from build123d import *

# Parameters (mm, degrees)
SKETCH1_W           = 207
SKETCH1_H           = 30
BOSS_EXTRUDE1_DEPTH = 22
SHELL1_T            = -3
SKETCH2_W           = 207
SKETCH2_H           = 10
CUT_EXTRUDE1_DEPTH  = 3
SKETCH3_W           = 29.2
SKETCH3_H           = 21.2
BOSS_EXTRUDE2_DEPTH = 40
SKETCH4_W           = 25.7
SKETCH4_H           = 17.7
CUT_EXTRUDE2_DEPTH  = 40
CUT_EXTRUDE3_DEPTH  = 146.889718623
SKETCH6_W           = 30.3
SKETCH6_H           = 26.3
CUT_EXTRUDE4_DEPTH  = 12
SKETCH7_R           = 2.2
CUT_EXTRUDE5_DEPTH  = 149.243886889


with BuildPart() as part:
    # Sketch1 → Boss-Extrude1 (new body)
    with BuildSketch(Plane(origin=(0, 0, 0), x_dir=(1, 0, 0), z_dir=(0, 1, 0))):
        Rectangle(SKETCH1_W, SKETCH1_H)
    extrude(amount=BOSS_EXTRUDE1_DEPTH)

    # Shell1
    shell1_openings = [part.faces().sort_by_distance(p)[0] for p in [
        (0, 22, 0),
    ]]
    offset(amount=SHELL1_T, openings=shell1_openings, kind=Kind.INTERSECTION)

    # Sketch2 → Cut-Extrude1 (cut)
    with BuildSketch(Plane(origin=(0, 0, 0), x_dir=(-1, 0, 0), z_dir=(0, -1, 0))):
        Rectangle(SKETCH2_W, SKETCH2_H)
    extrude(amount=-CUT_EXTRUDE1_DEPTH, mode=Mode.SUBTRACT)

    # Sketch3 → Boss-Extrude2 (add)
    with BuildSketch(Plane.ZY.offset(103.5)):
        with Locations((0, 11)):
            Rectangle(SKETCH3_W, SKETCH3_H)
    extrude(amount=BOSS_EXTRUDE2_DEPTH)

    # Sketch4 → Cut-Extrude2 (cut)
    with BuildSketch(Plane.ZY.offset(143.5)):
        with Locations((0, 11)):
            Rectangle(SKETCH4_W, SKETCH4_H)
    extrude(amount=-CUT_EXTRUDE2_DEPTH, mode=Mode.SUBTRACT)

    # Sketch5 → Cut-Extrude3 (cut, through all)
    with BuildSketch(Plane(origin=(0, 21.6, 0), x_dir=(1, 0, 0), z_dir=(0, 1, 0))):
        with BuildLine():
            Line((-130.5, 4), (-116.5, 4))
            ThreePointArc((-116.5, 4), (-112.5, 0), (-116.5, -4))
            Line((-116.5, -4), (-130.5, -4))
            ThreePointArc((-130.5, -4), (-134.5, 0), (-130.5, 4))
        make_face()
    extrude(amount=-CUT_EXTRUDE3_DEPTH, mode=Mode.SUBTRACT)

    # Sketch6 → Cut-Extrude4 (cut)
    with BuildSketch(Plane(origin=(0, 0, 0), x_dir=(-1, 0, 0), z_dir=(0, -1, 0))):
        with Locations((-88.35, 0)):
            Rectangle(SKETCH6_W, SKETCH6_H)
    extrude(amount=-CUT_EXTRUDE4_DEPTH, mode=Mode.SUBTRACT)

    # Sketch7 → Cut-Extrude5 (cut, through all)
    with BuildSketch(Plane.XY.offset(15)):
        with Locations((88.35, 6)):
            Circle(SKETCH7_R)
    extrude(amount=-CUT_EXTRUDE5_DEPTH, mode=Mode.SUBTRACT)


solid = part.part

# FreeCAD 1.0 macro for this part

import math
import FreeCAD as App
import Part
import Sketcher


def faces_at(feature, points):
    """Names of the faces that lie closest to the given points."""
    faces = feature.Shape.Faces
    near = lambda p: min(range(len(faces)), key=lambda i: faces[i].distToShape(Part.Vertex(*p))[0])
    return sorted({f"Face{near(p) + 1}" for p in points})

doc = App.newDocument("Part")
body = doc.addObject("PartDesign::Body", "Body")

# Sketch on XZ plane
sketch1 = body.newObject("Sketcher::SketchObject", "Sketch")
sketch1.AttachmentSupport = (doc.getObject("XZ_Plane"), [""])
sketch1.MapMode = "FlatFace"
sketch1.addGeometry([
    Part.LineSegment(App.Vector(-104, -15, 0), App.Vector(-104, 15, 0)),
    Part.LineSegment(App.Vector(-104, 15, 0), App.Vector(104, 15, 0)),
    Part.LineSegment(App.Vector(104, 15, 0), App.Vector(104, -15, 0)),
    Part.LineSegment(App.Vector(104, -15, 0), App.Vector(-104, -15, 0)),
], False)
sketch1.addConstraint([
    Sketcher.Constraint("Coincident", 0, 2, 1, 1),
    Sketcher.Constraint("Coincident", 1, 2, 2, 1),
    Sketcher.Constraint("Coincident", 2, 2, 3, 1),
    Sketcher.Constraint("Coincident", 3, 2, 0, 1),
    Sketcher.Constraint("Vertical", 0),
    Sketcher.Constraint("Horizontal", 1),
    Sketcher.Constraint("Vertical", 2),
    Sketcher.Constraint("Horizontal", 3),
    Sketcher.Constraint("Symmetric", 0, 2, 2, 2, -1, 1),
    Sketcher.Constraint("DistanceX", 1, 1, 1, 2, 207.0),
    Sketcher.Constraint("DistanceY", 0, 1, 0, 2, 30.0),
])
pad1 = body.newObject("PartDesign::Pad", "Pad")
pad1.Profile = sketch1
pad1.Length = 22
pad1.Reversed = True
doc.recompute()

thickness = body.newObject("PartDesign::Thickness", "Thickness")
thickness.Base = (pad1, faces_at(pad1, [(0, 22, 0)]))
thickness.Value = 3
thickness.Reversed = True
thickness.Join = "Intersection"

# Sketch on XZ plane
sketch2 = body.newObject("Sketcher::SketchObject", "Sketch001")
sketch2.AttachmentSupport = (doc.getObject("XZ_Plane"), [""])
sketch2.MapMode = "FlatFace"
sketch2.addGeometry([
    Part.LineSegment(App.Vector(104, -5, 0), App.Vector(104, 5, 0)),
    Part.LineSegment(App.Vector(104, 5, 0), App.Vector(-104, 5, 0)),
    Part.LineSegment(App.Vector(-104, 5, 0), App.Vector(-104, -5, 0)),
    Part.LineSegment(App.Vector(-104, -5, 0), App.Vector(104, -5, 0)),
], False)
sketch2.addConstraint([
    Sketcher.Constraint("Coincident", 0, 2, 1, 1),
    Sketcher.Constraint("Coincident", 1, 2, 2, 1),
    Sketcher.Constraint("Coincident", 2, 2, 3, 1),
    Sketcher.Constraint("Coincident", 3, 2, 0, 1),
    Sketcher.Constraint("Vertical", 0),
    Sketcher.Constraint("Horizontal", 1),
    Sketcher.Constraint("Vertical", 2),
    Sketcher.Constraint("Horizontal", 3),
    Sketcher.Constraint("Symmetric", 0, 2, 2, 2, -1, 1),
    Sketcher.Constraint("DistanceX", 1, 2, 1, 1, 207.0),
    Sketcher.Constraint("DistanceY", 0, 1, 0, 2, 10.0),
])
pocket1 = body.newObject("PartDesign::Pocket", "Pocket")
pocket1.Profile = sketch2
pocket1.Length = 3

# Sketch on YZ plane
sketch3 = body.newObject("Sketcher::SketchObject", "Sketch002")
sketch3.AttachmentSupport = (doc.getObject("YZ_Plane"), [""])
sketch3.MapMode = "FlatFace"
sketch3.AttachmentOffset = App.Placement(App.Vector(0, 0, -103.5), App.Rotation())
sketch3.addGeometry([
    Part.LineSegment(App.Vector(22, -15, 0), App.Vector(0, -15, 0)),
    Part.LineSegment(App.Vector(0, -15, 0), App.Vector(0, 15, 0)),
    Part.LineSegment(App.Vector(0, 15, 0), App.Vector(22, 15, 0)),
    Part.LineSegment(App.Vector(22, 15, 0), App.Vector(22, -15, 0)),
], False)
sketch3.addConstraint([
    Sketcher.Constraint("Coincident", 0, 2, 1, 1),
    Sketcher.Constraint("Coincident", 1, 2, 2, 1),
    Sketcher.Constraint("Coincident", 2, 2, 3, 1),
    Sketcher.Constraint("Coincident", 3, 2, 0, 1),
    Sketcher.Constraint("Horizontal", 0),
    Sketcher.Constraint("Vertical", 1),
    Sketcher.Constraint("Horizontal", 2),
    Sketcher.Constraint("Vertical", 3),
    Sketcher.Constraint("DistanceX", 0, 2, 0, 1, 21.2),
    Sketcher.Constraint("DistanceY", 1, 1, 1, 2, 29.2),
    Sketcher.Constraint("DistanceX", -1, 1, 0, 2, 0.4),
    Sketcher.Constraint("DistanceY", 0, 2, -1, 1, 14.6),
])
pad2 = body.newObject("PartDesign::Pad", "Pad001")
pad2.Profile = sketch3
pad2.Length = 40
pad2.Reversed = True

# Sketch on YZ plane
sketch4 = body.newObject("Sketcher::SketchObject", "Sketch003")
sketch4.AttachmentSupport = (doc.getObject("YZ_Plane"), [""])
sketch4.MapMode = "FlatFace"
sketch4.AttachmentOffset = App.Placement(App.Vector(0, 0, -143.5), App.Rotation())
sketch4.addGeometry([
    Part.LineSegment(App.Vector(20, -13, 0), App.Vector(2, -13, 0)),
    Part.LineSegment(App.Vector(2, -13, 0), App.Vector(2, 13, 0)),
    Part.LineSegment(App.Vector(2, 13, 0), App.Vector(20, 13, 0)),
    Part.LineSegment(App.Vector(20, 13, 0), App.Vector(20, -13, 0)),
], False)
sketch4.addConstraint([
    Sketcher.Constraint("Coincident", 0, 2, 1, 1),
    Sketcher.Constraint("Coincident", 1, 2, 2, 1),
    Sketcher.Constraint("Coincident", 2, 2, 3, 1),
    Sketcher.Constraint("Coincident", 3, 2, 0, 1),
    Sketcher.Constraint("Horizontal", 0),
    Sketcher.Constraint("Vertical", 1),
    Sketcher.Constraint("Horizontal", 2),
    Sketcher.Constraint("Vertical", 3),
    Sketcher.Constraint("DistanceX", 0, 2, 0, 1, 17.7),
    Sketcher.Constraint("DistanceY", 1, 1, 1, 2, 25.7),
    Sketcher.Constraint("DistanceX", -1, 1, 0, 2, 2.15),
    Sketcher.Constraint("DistanceY", 0, 2, -1, 1, 12.85),
])
pocket2 = body.newObject("PartDesign::Pocket", "Pocket001")
pocket2.Profile = sketch4
pocket2.Length = 40
pocket2.Reversed = True

# Sketch on XZ plane
sketch5 = body.newObject("Sketcher::SketchObject", "Sketch004")
sketch5.AttachmentSupport = (doc.getObject("XZ_Plane"), [""])
sketch5.MapMode = "FlatFace"
sketch5.AttachmentOffset = App.Placement(App.Vector(0, 0, -21.6), App.Rotation())
sketch5.addGeometry([
    Part.LineSegment(App.Vector(-116.5, -4, 0), App.Vector(-130.5, -4, 0)),
    Part.ArcOfCircle(Part.Circle(App.Vector(-130.5, 0, 0), App.Vector(0, 0, 1), 4), math.radians(90), math.radians(270)),
    Part.LineSegment(App.Vector(-130.5, 4, 0), App.Vector(-116.5, 4, 0)),
    Part.ArcOfCircle(Part.Circle(App.Vector(-116.5, 0, 0), App.Vector(0, 0, 1), 4), math.radians(-90), math.radians(90)),
], False)
sketch5.addConstraint([
    Sketcher.Constraint("Tangent", 0, 2, 1, 2),
    Sketcher.Constraint("Tangent", 1, 1, 2, 1),
    Sketcher.Constraint("Tangent", 2, 2, 3, 2),
    Sketcher.Constraint("Tangent", 3, 1, 0, 1),
    Sketcher.Constraint("Horizontal", 0),
    Sketcher.Constraint("Horizontal", 2),
    Sketcher.Constraint("PointOnObject", 1, 3, -1),
    Sketcher.Constraint("Radius", 1, 4.0),
    Sketcher.Constraint("DistanceX", 0, 2, 0, 1, 14.0),
    Sketcher.Constraint("DistanceX", 1, 3, -1, 1, 130.5),
])
pocket3 = body.newObject("PartDesign::Pocket", "Pocket002")
pocket3.Profile = sketch5
pocket3.Type = "ThroughAll"
pocket3.Reversed = True

# Sketch on XZ plane
sketch6 = body.newObject("Sketcher::SketchObject", "Sketch005")
sketch6.AttachmentSupport = (doc.getObject("XZ_Plane"), [""])
sketch6.MapMode = "FlatFace"
sketch6.addGeometry([
    Part.LineSegment(App.Vector(104, -13, 0), App.Vector(104, 13, 0)),
    Part.LineSegment(App.Vector(104, 13, 0), App.Vector(73, 13, 0)),
    Part.LineSegment(App.Vector(73, 13, 0), App.Vector(73, -13, 0)),
    Part.LineSegment(App.Vector(73, -13, 0), App.Vector(104, -13, 0)),
], False)
sketch6.addConstraint([
    Sketcher.Constraint("Coincident", 0, 2, 1, 1),
    Sketcher.Constraint("Coincident", 1, 2, 2, 1),
    Sketcher.Constraint("Coincident", 2, 2, 3, 1),
    Sketcher.Constraint("Coincident", 3, 2, 0, 1),
    Sketcher.Constraint("Vertical", 0),
    Sketcher.Constraint("Horizontal", 1),
    Sketcher.Constraint("Vertical", 2),
    Sketcher.Constraint("Horizontal", 3),
    Sketcher.Constraint("DistanceX", 1, 2, 1, 1, 30.3),
    Sketcher.Constraint("DistanceY", 0, 1, 0, 2, 26.3),
    Sketcher.Constraint("DistanceX", -1, 1, 0, 2, 103.5),
    Sketcher.Constraint("DistanceY", -1, 1, 0, 2, 13.15),
])
pocket4 = body.newObject("PartDesign::Pocket", "Pocket003")
pocket4.Profile = sketch6
pocket4.Length = 12

# Sketch on XY plane
sketch7 = body.newObject("Sketcher::SketchObject", "Sketch006")
sketch7.AttachmentSupport = (doc.getObject("XY_Plane"), [""])
sketch7.MapMode = "FlatFace"
sketch7.AttachmentOffset = App.Placement(App.Vector(0, 0, 15), App.Rotation())
sketch7.addGeometry(Part.Circle(App.Vector(88.3, 6, 0), App.Vector(0, 0, 1), 2.2), False)
sketch7.addConstraint([
    Sketcher.Constraint("Diameter", 0, 4.4),
    Sketcher.Constraint("DistanceY", -1, 1, 0, 3, 6.0),
    Sketcher.Constraint("DistanceX", -1, 1, 0, 3, 88.35),
])
pocket5 = body.newObject("PartDesign::Pocket", "Pocket004")
pocket5.Profile = sketch7
pocket5.Type = "ThroughAll"

doc.recompute()
